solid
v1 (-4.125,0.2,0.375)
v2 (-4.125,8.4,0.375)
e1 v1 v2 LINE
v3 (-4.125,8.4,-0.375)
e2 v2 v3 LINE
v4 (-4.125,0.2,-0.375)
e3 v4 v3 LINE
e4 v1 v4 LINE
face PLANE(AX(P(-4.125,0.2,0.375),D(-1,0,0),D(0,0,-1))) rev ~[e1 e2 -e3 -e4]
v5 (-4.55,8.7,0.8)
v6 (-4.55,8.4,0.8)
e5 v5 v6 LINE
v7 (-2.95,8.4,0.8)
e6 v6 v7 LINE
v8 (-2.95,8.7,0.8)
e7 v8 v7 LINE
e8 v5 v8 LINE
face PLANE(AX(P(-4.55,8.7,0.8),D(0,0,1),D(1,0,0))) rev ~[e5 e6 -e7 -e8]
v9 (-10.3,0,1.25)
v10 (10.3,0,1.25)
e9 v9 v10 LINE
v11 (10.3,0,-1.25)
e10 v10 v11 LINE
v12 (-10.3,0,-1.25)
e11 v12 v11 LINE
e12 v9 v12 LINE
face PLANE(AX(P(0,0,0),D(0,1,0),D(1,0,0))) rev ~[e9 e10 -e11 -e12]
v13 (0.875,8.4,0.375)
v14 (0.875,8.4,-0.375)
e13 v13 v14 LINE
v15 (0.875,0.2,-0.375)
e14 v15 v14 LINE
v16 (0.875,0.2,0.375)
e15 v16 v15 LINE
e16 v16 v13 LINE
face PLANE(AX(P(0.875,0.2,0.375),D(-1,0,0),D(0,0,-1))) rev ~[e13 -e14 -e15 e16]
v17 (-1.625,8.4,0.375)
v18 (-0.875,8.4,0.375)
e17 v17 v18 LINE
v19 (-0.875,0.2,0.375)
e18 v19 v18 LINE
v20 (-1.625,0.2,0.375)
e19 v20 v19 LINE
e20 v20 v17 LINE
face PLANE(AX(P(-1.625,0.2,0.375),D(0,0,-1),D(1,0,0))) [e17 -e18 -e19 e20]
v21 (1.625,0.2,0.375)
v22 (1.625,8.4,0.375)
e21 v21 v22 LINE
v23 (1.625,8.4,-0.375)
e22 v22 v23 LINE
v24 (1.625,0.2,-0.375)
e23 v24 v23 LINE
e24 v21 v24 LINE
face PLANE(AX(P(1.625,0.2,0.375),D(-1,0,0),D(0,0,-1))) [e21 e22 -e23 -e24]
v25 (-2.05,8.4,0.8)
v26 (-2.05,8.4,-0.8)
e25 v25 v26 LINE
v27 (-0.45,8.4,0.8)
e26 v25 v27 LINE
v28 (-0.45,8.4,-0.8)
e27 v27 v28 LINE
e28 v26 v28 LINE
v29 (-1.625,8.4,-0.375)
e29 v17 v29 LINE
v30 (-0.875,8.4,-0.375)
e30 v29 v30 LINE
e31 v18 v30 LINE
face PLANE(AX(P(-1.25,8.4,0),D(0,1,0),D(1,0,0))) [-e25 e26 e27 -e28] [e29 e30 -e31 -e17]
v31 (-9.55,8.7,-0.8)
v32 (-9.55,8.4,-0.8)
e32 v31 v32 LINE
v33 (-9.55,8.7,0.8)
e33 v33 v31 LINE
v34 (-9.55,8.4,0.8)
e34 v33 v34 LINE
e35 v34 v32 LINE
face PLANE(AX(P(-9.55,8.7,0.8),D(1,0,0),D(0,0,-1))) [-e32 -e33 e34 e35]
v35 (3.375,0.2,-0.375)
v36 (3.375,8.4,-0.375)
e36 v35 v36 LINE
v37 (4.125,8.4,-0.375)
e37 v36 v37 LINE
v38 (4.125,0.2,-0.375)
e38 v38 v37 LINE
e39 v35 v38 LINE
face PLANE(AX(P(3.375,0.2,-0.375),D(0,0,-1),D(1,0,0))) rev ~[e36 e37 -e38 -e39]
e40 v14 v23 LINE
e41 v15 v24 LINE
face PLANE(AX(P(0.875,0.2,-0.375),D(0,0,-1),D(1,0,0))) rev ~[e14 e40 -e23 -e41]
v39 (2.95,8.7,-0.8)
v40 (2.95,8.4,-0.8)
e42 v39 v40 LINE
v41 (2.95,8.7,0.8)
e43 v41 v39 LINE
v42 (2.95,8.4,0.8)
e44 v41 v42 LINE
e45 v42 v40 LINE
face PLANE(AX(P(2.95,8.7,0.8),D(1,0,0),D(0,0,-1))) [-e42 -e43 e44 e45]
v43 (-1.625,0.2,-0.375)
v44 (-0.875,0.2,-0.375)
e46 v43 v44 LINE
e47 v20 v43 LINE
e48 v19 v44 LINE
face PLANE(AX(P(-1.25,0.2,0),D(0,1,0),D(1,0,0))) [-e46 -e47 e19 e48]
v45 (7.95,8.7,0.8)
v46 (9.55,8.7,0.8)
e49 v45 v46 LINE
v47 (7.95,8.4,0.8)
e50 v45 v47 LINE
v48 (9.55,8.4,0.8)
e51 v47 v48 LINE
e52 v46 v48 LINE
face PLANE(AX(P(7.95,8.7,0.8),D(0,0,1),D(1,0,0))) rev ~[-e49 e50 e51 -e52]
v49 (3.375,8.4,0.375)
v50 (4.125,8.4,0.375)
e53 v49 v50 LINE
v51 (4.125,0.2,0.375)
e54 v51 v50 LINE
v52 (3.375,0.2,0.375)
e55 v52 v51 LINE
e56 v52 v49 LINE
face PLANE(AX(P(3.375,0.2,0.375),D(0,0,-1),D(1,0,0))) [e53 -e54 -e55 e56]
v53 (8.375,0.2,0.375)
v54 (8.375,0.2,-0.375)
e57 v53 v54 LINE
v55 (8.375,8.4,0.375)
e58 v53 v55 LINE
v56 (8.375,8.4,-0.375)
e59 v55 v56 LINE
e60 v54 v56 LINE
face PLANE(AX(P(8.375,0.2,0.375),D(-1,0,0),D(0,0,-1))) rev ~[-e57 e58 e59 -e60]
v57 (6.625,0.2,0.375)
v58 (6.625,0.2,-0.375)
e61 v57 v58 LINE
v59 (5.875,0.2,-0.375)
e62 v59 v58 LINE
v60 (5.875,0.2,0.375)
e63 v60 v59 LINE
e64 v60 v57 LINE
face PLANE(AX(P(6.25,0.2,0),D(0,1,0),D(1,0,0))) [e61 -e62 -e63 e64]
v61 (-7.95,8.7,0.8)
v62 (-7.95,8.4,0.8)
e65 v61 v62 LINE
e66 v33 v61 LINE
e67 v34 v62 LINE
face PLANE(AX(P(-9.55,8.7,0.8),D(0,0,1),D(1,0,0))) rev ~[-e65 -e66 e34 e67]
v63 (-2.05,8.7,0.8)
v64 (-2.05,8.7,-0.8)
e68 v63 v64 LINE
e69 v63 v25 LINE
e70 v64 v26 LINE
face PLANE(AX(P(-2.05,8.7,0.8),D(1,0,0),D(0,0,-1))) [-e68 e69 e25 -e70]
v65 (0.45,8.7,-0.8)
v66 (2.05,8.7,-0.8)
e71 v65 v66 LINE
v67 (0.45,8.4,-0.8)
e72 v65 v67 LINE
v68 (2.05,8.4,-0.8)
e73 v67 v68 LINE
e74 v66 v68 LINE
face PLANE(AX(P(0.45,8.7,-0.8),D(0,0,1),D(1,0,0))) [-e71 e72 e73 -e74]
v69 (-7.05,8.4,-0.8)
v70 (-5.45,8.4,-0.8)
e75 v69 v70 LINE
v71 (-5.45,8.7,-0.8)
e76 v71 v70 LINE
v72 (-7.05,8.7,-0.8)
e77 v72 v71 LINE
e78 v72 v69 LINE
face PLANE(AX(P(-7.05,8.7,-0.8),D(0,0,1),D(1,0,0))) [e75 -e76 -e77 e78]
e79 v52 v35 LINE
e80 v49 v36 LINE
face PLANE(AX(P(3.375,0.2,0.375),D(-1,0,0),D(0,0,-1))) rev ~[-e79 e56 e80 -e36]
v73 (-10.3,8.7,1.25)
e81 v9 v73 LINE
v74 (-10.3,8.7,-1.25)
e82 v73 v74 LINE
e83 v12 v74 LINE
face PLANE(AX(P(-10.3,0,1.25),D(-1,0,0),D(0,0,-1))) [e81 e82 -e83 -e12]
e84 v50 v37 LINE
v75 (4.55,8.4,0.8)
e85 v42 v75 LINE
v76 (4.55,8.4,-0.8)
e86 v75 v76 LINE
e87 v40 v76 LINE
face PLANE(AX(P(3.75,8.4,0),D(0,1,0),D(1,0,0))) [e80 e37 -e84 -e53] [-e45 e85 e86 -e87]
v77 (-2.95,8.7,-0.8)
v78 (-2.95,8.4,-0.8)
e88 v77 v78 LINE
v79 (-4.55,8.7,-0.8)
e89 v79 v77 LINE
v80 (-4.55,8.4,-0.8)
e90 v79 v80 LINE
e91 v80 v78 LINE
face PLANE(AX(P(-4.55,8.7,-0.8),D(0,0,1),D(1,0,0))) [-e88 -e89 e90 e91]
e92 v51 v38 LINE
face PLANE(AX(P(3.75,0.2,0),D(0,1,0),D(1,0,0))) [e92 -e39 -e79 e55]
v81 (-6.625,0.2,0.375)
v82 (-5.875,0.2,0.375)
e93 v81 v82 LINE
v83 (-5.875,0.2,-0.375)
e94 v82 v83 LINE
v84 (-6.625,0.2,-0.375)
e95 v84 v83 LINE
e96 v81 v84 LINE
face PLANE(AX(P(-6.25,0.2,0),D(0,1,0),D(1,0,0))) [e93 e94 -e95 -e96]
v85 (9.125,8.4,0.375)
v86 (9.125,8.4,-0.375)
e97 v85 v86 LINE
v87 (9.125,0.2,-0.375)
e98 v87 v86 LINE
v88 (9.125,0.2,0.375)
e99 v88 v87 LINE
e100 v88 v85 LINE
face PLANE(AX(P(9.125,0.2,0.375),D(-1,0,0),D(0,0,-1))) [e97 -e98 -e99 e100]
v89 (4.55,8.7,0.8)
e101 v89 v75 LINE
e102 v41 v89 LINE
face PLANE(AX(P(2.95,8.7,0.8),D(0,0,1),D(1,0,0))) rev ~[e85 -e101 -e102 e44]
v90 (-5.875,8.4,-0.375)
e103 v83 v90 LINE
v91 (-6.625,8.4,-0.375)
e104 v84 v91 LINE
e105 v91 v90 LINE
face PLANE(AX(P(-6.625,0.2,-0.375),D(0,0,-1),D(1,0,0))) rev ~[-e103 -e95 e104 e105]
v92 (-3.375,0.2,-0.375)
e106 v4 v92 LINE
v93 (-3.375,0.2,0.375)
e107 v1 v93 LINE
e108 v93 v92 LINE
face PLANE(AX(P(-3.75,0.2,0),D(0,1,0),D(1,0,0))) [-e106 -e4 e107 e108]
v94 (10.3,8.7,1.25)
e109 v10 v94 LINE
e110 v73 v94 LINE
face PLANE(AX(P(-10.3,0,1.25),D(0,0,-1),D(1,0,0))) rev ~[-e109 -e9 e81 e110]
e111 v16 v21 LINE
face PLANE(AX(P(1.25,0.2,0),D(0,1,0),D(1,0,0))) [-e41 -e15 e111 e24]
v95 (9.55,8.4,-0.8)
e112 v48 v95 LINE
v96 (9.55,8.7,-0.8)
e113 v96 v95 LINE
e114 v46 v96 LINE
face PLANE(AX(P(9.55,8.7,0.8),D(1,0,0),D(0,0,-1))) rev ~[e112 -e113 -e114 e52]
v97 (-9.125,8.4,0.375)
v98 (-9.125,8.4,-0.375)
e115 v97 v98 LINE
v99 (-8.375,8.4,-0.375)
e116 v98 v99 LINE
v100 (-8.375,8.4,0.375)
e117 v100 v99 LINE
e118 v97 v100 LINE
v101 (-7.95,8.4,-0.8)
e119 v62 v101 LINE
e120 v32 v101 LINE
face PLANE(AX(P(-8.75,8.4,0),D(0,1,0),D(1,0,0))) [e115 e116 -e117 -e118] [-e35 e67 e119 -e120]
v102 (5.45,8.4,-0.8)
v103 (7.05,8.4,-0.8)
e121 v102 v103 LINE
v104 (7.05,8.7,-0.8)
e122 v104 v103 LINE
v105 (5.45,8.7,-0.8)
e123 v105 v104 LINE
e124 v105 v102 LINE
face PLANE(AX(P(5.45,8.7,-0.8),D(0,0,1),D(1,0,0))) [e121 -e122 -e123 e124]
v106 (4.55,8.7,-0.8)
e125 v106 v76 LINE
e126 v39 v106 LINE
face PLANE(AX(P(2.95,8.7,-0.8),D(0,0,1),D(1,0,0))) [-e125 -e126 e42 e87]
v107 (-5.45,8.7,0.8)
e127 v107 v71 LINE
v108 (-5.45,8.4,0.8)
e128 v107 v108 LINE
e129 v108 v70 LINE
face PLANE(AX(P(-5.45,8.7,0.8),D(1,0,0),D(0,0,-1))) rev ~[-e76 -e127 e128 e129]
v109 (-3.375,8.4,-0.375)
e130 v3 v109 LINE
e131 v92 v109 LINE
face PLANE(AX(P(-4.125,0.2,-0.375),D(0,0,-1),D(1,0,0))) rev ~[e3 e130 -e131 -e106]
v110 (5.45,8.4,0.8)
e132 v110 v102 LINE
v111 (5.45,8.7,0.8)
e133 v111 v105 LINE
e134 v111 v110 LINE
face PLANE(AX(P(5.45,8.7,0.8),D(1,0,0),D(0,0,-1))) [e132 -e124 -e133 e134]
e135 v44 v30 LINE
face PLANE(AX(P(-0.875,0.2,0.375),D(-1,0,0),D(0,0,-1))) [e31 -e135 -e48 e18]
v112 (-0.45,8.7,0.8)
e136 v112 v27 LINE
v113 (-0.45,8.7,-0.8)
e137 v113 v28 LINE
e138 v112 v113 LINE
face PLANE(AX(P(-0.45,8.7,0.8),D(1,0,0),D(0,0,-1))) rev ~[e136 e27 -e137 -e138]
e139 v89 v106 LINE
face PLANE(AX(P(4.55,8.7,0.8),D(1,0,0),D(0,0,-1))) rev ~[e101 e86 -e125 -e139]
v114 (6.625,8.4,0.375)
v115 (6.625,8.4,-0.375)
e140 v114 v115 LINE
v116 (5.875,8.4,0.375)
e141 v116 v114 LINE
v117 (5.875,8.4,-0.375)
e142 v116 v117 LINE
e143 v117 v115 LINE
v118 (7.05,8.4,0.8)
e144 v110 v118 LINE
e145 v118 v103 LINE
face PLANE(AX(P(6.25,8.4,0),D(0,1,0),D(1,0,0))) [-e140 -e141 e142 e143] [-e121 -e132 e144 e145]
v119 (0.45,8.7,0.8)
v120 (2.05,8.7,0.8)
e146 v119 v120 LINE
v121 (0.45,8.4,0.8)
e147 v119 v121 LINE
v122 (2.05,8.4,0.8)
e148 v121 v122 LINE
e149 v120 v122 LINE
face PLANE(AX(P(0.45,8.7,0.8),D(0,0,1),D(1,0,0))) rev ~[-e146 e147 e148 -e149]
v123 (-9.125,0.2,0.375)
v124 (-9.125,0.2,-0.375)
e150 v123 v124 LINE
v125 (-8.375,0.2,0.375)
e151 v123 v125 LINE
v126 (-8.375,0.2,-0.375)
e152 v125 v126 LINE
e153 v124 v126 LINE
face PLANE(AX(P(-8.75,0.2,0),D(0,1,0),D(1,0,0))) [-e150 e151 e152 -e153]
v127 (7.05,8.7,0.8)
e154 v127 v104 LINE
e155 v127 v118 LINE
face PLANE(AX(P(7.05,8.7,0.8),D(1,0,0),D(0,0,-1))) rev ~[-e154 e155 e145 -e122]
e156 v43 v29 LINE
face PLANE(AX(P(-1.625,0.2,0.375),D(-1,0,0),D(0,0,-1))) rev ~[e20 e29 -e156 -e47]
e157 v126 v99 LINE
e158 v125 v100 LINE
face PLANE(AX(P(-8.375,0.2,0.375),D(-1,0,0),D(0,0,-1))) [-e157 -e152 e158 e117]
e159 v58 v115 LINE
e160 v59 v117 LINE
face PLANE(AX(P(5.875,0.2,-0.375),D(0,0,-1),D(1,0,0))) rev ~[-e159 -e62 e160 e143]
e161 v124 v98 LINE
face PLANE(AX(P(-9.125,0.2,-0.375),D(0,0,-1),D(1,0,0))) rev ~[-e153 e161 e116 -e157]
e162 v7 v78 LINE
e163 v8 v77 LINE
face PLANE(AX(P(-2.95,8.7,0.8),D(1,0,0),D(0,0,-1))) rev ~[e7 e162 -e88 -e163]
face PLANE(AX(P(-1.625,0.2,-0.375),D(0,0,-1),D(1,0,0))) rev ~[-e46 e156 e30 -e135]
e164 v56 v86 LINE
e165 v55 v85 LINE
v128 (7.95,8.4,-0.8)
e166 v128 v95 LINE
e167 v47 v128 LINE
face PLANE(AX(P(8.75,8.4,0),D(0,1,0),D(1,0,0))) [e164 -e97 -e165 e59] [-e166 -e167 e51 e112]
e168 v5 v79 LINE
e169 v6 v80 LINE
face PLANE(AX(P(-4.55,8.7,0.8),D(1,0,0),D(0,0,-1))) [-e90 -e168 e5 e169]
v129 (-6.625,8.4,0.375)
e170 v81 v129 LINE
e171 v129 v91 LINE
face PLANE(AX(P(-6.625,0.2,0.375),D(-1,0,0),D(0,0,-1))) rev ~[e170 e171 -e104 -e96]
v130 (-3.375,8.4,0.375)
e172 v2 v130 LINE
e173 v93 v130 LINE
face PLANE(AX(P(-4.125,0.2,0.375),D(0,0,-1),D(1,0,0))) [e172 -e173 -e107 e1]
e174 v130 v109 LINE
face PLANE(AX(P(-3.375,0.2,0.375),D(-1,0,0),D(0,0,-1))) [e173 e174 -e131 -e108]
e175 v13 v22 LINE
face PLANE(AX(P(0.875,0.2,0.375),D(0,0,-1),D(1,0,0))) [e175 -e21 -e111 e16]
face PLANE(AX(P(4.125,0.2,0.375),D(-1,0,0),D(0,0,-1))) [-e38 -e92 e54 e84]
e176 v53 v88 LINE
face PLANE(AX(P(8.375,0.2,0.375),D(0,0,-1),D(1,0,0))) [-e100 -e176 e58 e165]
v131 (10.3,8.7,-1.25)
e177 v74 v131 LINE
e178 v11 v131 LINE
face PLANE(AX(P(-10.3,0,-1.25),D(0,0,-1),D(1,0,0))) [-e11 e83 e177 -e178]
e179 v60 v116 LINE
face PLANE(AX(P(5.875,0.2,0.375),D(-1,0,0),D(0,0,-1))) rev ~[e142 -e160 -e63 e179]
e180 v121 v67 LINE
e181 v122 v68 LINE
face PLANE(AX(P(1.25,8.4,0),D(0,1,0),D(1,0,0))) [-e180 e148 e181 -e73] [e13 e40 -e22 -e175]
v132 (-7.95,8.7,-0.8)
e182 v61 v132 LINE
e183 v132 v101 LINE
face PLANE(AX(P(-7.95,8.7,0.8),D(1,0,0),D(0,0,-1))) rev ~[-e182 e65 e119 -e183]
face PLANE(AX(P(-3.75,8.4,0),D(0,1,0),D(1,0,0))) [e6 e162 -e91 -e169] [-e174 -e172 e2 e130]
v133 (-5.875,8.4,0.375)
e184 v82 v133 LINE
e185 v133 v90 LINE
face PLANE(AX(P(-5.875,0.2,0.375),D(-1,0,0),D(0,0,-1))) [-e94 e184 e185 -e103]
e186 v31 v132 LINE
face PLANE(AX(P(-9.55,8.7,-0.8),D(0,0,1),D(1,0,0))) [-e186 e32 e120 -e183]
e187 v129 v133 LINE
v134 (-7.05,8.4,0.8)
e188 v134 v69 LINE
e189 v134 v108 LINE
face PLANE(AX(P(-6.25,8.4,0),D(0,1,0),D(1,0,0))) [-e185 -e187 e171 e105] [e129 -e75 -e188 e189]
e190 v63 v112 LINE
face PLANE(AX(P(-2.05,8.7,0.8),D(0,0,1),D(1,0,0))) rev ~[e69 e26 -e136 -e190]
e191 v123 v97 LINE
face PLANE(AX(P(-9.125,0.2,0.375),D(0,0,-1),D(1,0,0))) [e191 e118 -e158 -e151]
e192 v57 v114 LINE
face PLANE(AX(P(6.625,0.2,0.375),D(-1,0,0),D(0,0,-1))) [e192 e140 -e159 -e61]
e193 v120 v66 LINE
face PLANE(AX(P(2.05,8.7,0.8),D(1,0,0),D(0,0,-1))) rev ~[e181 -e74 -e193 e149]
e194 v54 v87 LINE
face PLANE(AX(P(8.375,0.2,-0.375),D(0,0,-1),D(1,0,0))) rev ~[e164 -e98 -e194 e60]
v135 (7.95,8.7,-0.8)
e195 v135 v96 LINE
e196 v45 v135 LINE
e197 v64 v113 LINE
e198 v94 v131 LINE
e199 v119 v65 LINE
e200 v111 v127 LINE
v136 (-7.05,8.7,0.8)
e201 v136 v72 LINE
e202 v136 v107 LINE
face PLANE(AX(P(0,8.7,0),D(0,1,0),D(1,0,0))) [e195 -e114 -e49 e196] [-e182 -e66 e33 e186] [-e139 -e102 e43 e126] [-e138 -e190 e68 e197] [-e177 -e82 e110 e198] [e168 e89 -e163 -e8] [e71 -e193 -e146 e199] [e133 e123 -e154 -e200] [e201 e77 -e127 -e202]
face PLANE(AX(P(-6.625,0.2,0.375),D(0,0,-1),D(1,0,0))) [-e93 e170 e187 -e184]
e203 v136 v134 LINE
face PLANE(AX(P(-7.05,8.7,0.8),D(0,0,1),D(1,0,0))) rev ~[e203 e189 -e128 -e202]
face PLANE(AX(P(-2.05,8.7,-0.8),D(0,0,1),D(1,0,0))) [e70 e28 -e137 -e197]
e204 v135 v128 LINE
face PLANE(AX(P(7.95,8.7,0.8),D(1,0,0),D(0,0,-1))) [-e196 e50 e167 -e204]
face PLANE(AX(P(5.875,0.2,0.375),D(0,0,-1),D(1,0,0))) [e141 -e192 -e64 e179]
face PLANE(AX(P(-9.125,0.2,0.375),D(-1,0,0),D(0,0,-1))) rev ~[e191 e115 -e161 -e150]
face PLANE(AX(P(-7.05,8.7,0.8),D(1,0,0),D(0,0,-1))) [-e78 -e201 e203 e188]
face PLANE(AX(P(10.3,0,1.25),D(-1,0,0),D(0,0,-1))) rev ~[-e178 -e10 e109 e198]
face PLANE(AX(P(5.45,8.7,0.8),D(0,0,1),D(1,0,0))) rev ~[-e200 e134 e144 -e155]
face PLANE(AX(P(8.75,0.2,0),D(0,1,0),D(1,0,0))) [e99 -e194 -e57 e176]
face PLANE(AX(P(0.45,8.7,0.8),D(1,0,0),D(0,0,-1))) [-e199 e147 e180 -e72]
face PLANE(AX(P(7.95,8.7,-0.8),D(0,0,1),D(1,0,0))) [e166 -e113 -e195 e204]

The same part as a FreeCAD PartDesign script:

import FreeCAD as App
import Part
import Sketcher
from FreeCAD import Vector

doc = App.newDocument("Part")
params = doc.addObject("Spreadsheet::Sheet", "Params")
for row, (alias, value) in enumerate([
    ("sketch1_width", "20.6 mm"),
    ("sketch1_height", "2.5 mm"),
    ("pad1_length", "8.7 mm"),
    ("sketch2_width", "1.6 mm"),
    ("pocket1_length", "8.5 mm"),
    ("sketch3_width", "1.6 mm"),
    ("sketch3_width2", "0.75 mm"),
    ("pad2_length", "8.2 mm"),
], start=1):
    params.set(f"A{row}", alias)
    params.set(f"B{row}", "=" + value)
    params.setAlias(f"B{row}", alias)

body = doc.addObject("PartDesign::Body", "Body")

sketch1 = doc.addObject("Sketcher::SketchObject", "Sketch")
body.addObject(sketch1)
sketch1.AttachmentSupport = (doc.XZ_Plane, [""])
sketch1.MapMode = "FlatFace"
sketch1.addGeometry([
    Part.LineSegment(Vector(-10.3, -1.2, 0), Vector(-10.3, 1.2, 0)),
    Part.LineSegment(Vector(-10.3, 1.2, 0), Vector(10.3, 1.2, 0)),
    Part.LineSegment(Vector(10.3, 1.2, 0), Vector(10.3, -1.2, 0)),
    Part.LineSegment(Vector(10.3, -1.2, 0), Vector(-10.3, -1.2, 0)),
], False)
sketch1.addConstraint([
    Sketcher.Constraint("Coincident", 0, 2, 1, 1),
    Sketcher.Constraint("Coincident", 1, 2, 2, 1),
    Sketcher.Constraint("Coincident", 2, 2, 3, 1),
    Sketcher.Constraint("Coincident", 3, 2, 0, 1),
    Sketcher.Constraint("Vertical", 0),
    Sketcher.Constraint("Horizontal", 1),
    Sketcher.Constraint("Vertical", 2),
    Sketcher.Constraint("Horizontal", 3),
    Sketcher.Constraint("Symmetric", 0, 2, 2, 2, -1, 1),
    Sketcher.Constraint("DistanceX", 1, 1, 1, 2, 20.6),
    Sketcher.Constraint("DistanceY", 0, 1, 0, 2, 2.5),
])
sketch1.setExpression("Constraints[9]", "Params.sketch1_width")
sketch1.setExpression("Constraints[10]", "Params.sketch1_height")
pad1 = doc.addObject("PartDesign::Pad", "Pad")
body.addObject(pad1)
pad1.Profile = sketch1
pad1.setExpression("Length", "Params.pad1_length")
pad1.Reversed = True

sketch2 = doc.addObject("Sketcher::SketchObject", "Sketch001")
body.addObject(sketch2)
sketch2.AttachmentSupport = (doc.XZ_Plane, [""])
sketch2.MapMode = "FlatFace"
sketch2.AttachmentOffset = App.Placement(Vector(0, 0, -8.7), App.Rotation())
sketch2.addGeometry([
    Part.LineSegment(Vector(-9.6, -0.8, 0), Vector(-9.6, 0.8, 0)),
    Part.LineSegment(Vector(-9.6, 0.8, 0), Vector(-8, 0.8, 0)),
    Part.LineSegment(Vector(-8, 0.8, 0), Vector(-8, -0.8, 0)),
    Part.LineSegment(Vector(-8, -0.8, 0), Vector(-9.6, -0.8, 0)),
    Part.LineSegment(Vector(-7, -0.8, 0), Vector(-7, 0.8, 0)),
    Part.LineSegment(Vector(-7, 0.8, 0), Vector(-5.5, 0.8, 0)),
    Part.LineSegment(Vector(-5.5, 0.8, 0), Vector(-5.5, -0.8, 0)),
    Part.LineSegment(Vector(-5.5, -0.8, 0), Vector(-7, -0.8, 0)),
    Part.LineSegment(Vector(-4.5, -0.8, 0), Vector(-4.5, 0.8, 0)),
    Part.LineSegment(Vector(-4.5, 0.8, 0), Vector(-3, 0.8, 0)),
    Part.LineSegment(Vector(-3, 0.8, 0), Vector(-3, -0.8, 0)),
    Part.LineSegment(Vector(-3, -0.8, 0), Vector(-4.5, -0.8, 0)),
    Part.LineSegment(Vector(-2, -0.8, 0), Vector(-2, 0.8, 0)),
    Part.LineSegment(Vector(-2, 0.8, 0), Vector(-0.5, 0.8, 0)),
    Part.LineSegment(Vector(-0.5, 0.8, 0), Vector(-0.5, -0.8, 0)),
    Part.LineSegment(Vector(-0.5, -0.8, 0), Vector(-2, -0.8, 0)),
    Part.LineSegment(Vector(0.5, -0.8, 0), Vector(0.5, 0.8, 0)),
    Part.LineSegment(Vector(0.5, 0.8, 0), Vector(2, 0.8, 0)),
    Part.LineSegment(Vector(2, 0.8, 0), Vector(2, -0.8, 0)),
    Part.LineSegment(Vector(2, -0.8, 0), Vector(0.5, -0.8, 0)),
    Part.LineSegment(Vector(3, -0.8, 0), Vector(3, 0.8, 0)),
    Part.LineSegment(Vector(3, 0.8, 0), Vector(4.5, 0.8, 0)),
    Part.LineSegment(Vector(4.5, 0.8, 0), Vector(4.5, -0.8, 0)),
    Part.LineSegment(Vector(4.5, -0.8, 0), Vector(3, -0.8, 0)),
    Part.LineSegment(Vector(5.5, -0.8, 0), Vector(5.5, 0.8, 0)),
    Part.LineSegment(Vector(5.5, 0.8, 0), Vector(7, 0.8, 0)),
    Part.LineSegment(Vector(7, 0.8, 0), Vector(7, -0.8, 0)),
    Part.LineSegment(Vector(7, -0.8, 0), Vector(5.5, -0.8, 0)),
    Part.LineSegment(Vector(8, -0.8, 0), Vector(8, 0.8, 0)),
    Part.LineSegment(Vector(8, 0.8, 0), Vector(9.6, 0.8, 0)),
    Part.LineSegment(Vector(9.6, 0.8, 0), Vector(9.6, -0.8, 0)),
    Part.LineSegment(Vector(9.6, -0.8, 0), Vector(8, -0.8, 0)),
], False)
sketch2.addConstraint([
    Sketcher.Constraint("Coincident", 0, 2, 1, 1),
    Sketcher.Constraint("Coincident", 1, 2, 2, 1),
    Sketcher.Constraint("Coincident", 2, 2, 3, 1),
    Sketcher.Constraint("Coincident", 3, 2, 0, 1),
    Sketcher.Constraint("Coincident", 4, 2, 5, 1),
    Sketcher.Constraint("Coincident", 5, 2, 6, 1),
    Sketcher.Constraint("Coincident", 6, 2, 7, 1),
    Sketcher.Constraint("Coincident", 7, 2, 4, 1),
    Sketcher.Constraint("Coincident", 8, 2, 9, 1),
    Sketcher.Constraint("Coincident", 9, 2, 10, 1),
    Sketcher.Constraint("Coincident", 10, 2, 11, 1),
    Sketcher.Constraint("Coincident", 11, 2, 8, 1),
    Sketcher.Constraint("Coincident", 12, 2, 13, 1),
    Sketcher.Constraint("Coincident", 13, 2, 14, 1),
    Sketcher.Constraint("Coincident", 14, 2, 15, 1),
    Sketcher.Constraint("Coincident", 15, 2, 12, 1),
    Sketcher.Constraint("Coincident", 16, 2, 17, 1),
    Sketcher.Constraint("Coincident", 17, 2, 18, 1),
    Sketcher.Constraint("Coincident", 18, 2, 19, 1),
    Sketcher.Constraint("Coincident", 19, 2, 16, 1),
    Sketcher.Constraint("Coincident", 20, 2, 21, 1),
    Sketcher.Constraint("Coincident", 21, 2, 22, 1),
    Sketcher.Constraint("Coincident", 22, 2, 23, 1),
    Sketcher.Constraint("Coincident", 23, 2, 20, 1),
    Sketcher.Constraint("Coincident", 24, 2, 25, 1),
    Sketcher.Constraint("Coincident", 25, 2, 26, 1),
    Sketcher.Constraint("Coincident", 26, 2, 27, 1),
    Sketcher.Constraint("Coincident", 27, 2, 24, 1),
    Sketcher.Constraint("Coincident", 28, 2, 29, 1),
    Sketcher.Constraint("Coincident", 29, 2, 30, 1),
    Sketcher.Constraint("Coincident", 30, 2, 31, 1),
    Sketcher.Constraint("Coincident", 31, 2, 28, 1),
    Sketcher.Constraint("Vertical", 0),
    Sketcher.Constraint("Horizontal", 1),
    Sketcher.Constraint("Vertical", 2),
    Sketcher.Constraint("Horizontal", 3),
    Sketcher.Constraint("Vertical", 4),
    Sketcher.Constraint("Horizontal", 5),
    Sketcher.Constraint("Vertical", 6),
    Sketcher.Constraint("Horizontal", 7),
    Sketcher.Constraint("Vertical", 8),
    Sketcher.Constraint("Horizontal", 9),
    Sketcher.Constraint("Vertical", 10),
    Sketcher.Constraint("Horizontal", 11),
    Sketcher.Constraint("Vertical", 12),
    Sketcher.Constraint("Horizontal", 13),
    Sketcher.Constraint("Vertical", 14),
    Sketcher.Constraint("Horizontal", 15),
    Sketcher.Constraint("Vertical", 16),
    Sketcher.Constraint("Horizontal", 17),
    Sketcher.Constraint("Vertical", 18),
    Sketcher.Constraint("Horizontal", 19),
    Sketcher.Constraint("Vertical", 20),
    Sketcher.Constraint("Horizontal", 21),
    Sketcher.Constraint("Vertical", 22),
    Sketcher.Constraint("Horizontal", 23),
    Sketcher.Constraint("Vertical", 24),
    Sketcher.Constraint("Horizontal", 25),
    Sketcher.Constraint("Vertical", 26),
    Sketcher.Constraint("Horizontal", 27),
    Sketcher.Constraint("Vertical", 28),
    Sketcher.Constraint("Horizontal", 29),
    Sketcher.Constraint("Vertical", 30),
    Sketcher.Constraint("Horizontal", 31),
    Sketcher.Constraint("Symmetric", 14, 2, 16, 2, -1, 1),
    Sketcher.Constraint("Symmetric", 12, 2, 18, 2, -1, 1),
    Sketcher.Constraint("Symmetric", 10, 2, 20, 2, -1, 1),
    Sketcher.Constraint("Symmetric", 8, 2, 22, 2, -1, 1),
    Sketcher.Constraint("Symmetric", 6, 2, 24, 2, -1, 1),
    Sketcher.Constraint("Symmetric", 4, 2, 26, 2, -1, 1),
    Sketcher.Constraint("Symmetric", 2, 2, 28, 2, -1, 1),
    Sketcher.Constraint("Symmetric", 0, 2, 30, 2, -1, 1),
    Sketcher.Constraint("Horizontal", 1, 2, 4, 2),
    Sketcher.Constraint("Horizontal", 3, 2, 6, 2),
    Sketcher.Constraint("Horizontal", 5, 2, 8, 2),
    Sketcher.Constraint("Horizontal", 7, 2, 10, 2),
    Sketcher.Constraint("Horizontal", 9, 2, 12, 2),
    Sketcher.Constraint("Horizontal", 11, 2, 14, 2),
    Sketcher.Constraint("Horizontal", 13, 2, 16, 2),
    Sketcher.Constraint("Equal", 3, 5),
    Sketcher.Constraint("Equal", 7, 9),
    Sketcher.Constraint("Equal", 11, 13),
    Sketcher.Constraint("Equal", 31, 0),
    Sketcher.Constraint("DistanceX", 1, 1, 1, 2, 1.6),
    Sketcher.Constraint("DistanceX", 1, 2, 4, 2, 0.9),
    Sketcher.Constraint("DistanceX", 5, 2, 8, 2, 0.9),
    Sketcher.Constraint("DistanceX", 9, 2, 12, 2, 0.9),
    Sketcher.Constraint("DistanceX", 13, 2, 16, 2, 0.9),
])
sketch2.setExpression("Constraints[83]", "Params.sketch2_width")
pocket1 = doc.addObject("PartDesign::Pocket", "Pocket")
body.addObject(pocket1)
pocket1.Profile = sketch2
pocket1.setExpression("Length", "Params.pocket1_length")
pocket1.Reversed = True

sketch3 = doc.addObject("Sketcher::SketchObject", "Sketch002")
body.addObject(sketch3)
sketch3.AttachmentSupport = (doc.XZ_Plane, [""])
sketch3.MapMode = "FlatFace"
sketch3.AttachmentOffset = App.Placement(Vector(0, 0, -0.2), App.Rotation())
sketch3.addGeometry([
    Part.LineSegment(Vector(-9.6, -0.8, 0), Vector(-9.6, 0.8, 0)),
    Part.LineSegment(Vector(-9.6, 0.8, 0), Vector(-8, 0.8, 0)),
    Part.LineSegment(Vector(-8, 0.8, 0), Vector(-8, -0.8, 0)),
    Part.LineSegment(Vector(-8, -0.8, 0), Vector(-9.6, -0.8, 0)),
    Part.LineSegment(Vector(-8.4, 0.4, 0), Vector(-9.1, 0.4, 0)),
    Part.LineSegment(Vector(-9.1, 0.4, 0), Vector(-9.1, -0.4, 0)),
    Part.LineSegment(Vector(-9.1, -0.4, 0), Vector(-8.4, -0.4, 0)),
    Part.LineSegment(Vector(-8.4, -0.4, 0), Vector(-8.4, 0.4, 0)),
    Part.LineSegment(Vector(-7, -0.8, 0), Vector(-7, 0.8, 0)),
    Part.LineSegment(Vector(-7, 0.8, 0), Vector(-5.5, 0.8, 0)),
    Part.LineSegment(Vector(-5.5, 0.8, 0), Vector(-5.5, -0.8, 0)),
    Part.LineSegment(Vector(-5.5, -0.8, 0), Vector(-7, -0.8, 0)),
    Part.LineSegment(Vector(-5.9, 0.4, 0), Vector(-6.6, 0.4, 0)),
    Part.LineSegment(Vector(-6.6, 0.4, 0), Vector(-6.6, -0.4, 0)),
    Part.LineSegment(Vector(-6.6, -0.4, 0), Vector(-5.9, -0.4, 0)),
    Part.LineSegment(Vector(-5.9, -0.4, 0), Vector(-5.9, 0.4, 0)),
    Part.LineSegment(Vector(-4.5, -0.8, 0), Vector(-4.5, 0.8, 0)),
    Part.LineSegment(Vector(-4.5, 0.8, 0), Vector(-3, 0.8, 0)),
    Part.LineSegment(Vector(-3, 0.8, 0), Vector(-3, -0.8, 0)),
    Part.LineSegment(Vector(-3, -0.8, 0), Vector(-4.5, -0.8, 0)),
    Part.LineSegment(Vector(-3.4, 0.4, 0), Vector(-4.1, 0.4, 0)),
    Part.LineSegment(Vector(-4.1, 0.4, 0), Vector(-4.1, -0.4, 0)),
    Part.LineSegment(Vector(-4.1, -0.4, 0), Vector(-3.4, -0.4, 0)),
    Part.LineSegment(Vector(-3.4, -0.4, 0), Vector(-3.4, 0.4, 0)),
    Part.LineSegment(Vector(-2, -0.8, 0), Vector(-2, 0.8, 0)),
    Part.LineSegment(Vector(-2, 0.8, 0), Vector(-0.5, 0.8, 0)),
    Part.LineSegment(Vector(-0.5, 0.8, 0), Vector(-0.5, -0.8, 0)),
    Part.LineSegment(Vector(-0.5, -0.8, 0), Vector(-2, -0.8, 0)),
    Part.LineSegment(Vector(-0.9, 0.4, 0), Vector(-1.6, 0.4, 0)),
    Part.LineSegment(Vector(-1.6, 0.4, 0), Vector(-1.6, -0.4, 0)),
    Part.LineSegment(Vector(-1.6, -0.4, 0), Vector(-0.9, -0.4, 0)),
    Part.LineSegment(Vector(-0.9, -0.4, 0), Vector(-0.9, 0.4, 0)),
    Part.LineSegment(Vector(0.5, -0.8, 0), Vector(0.5, 0.8, 0)),
    Part.LineSegment(Vector(0.5, 0.8, 0), Vector(2, 0.8, 0)),
    Part.LineSegment(Vector(2, 0.8, 0), Vector(2, -0.8, 0)),
    Part.LineSegment(Vector(2, -0.8, 0), Vector(0.5, -0.8, 0)),
    Part.LineSegment(Vector(1.6, 0.4, 0), Vector(0.9, 0.4, 0)),
    Part.LineSegment(Vector(0.9, 0.4, 0), Vector(0.9, -0.4, 0)),
    Part.LineSegment(Vector(0.9, -0.4, 0), Vector(1.6, -0.4, 0)),
    Part.LineSegment(Vector(1.6, -0.4, 0), Vector(1.6, 0.4, 0)),
    Part.LineSegment(Vector(3, -0.8, 0), Vector(3, 0.8, 0)),
    Part.LineSegment(Vector(3, 0.8, 0), Vector(4.5, 0.8, 0)),
    Part.LineSegment(Vector(4.5, 0.8, 0), Vector(4.5, -0.8, 0)),
    Part.LineSegment(Vector(4.5, -0.8, 0), Vector(3, -0.8, 0)),
    Part.LineSegment(Vector(4.1, 0.4, 0), Vector(3.4, 0.4, 0)),
    Part.LineSegment(Vector(3.4, 0.4, 0), Vector(3.4, -0.4, 0)),
    Part.LineSegment(Vector(3.4, -0.4, 0), Vector(4.1, -0.4, 0)),
    Part.LineSegment(Vector(4.1, -0.4, 0), Vector(4.1, 0.4, 0)),
    Part.LineSegment(Vector(5.5, -0.8, 0), Vector(5.5, 0.8, 0)),
    Part.LineSegment(Vector(5.5, 0.8, 0), Vector(7, 0.8, 0)),
    Part.LineSegment(Vector(7, 0.8, 0), Vector(7, -0.8, 0)),
    Part.LineSegment(Vector(7, -0.8, 0), Vector(5.5, -0.8, 0)),
    Part.LineSegment(Vector(6.6, 0.4, 0), Vector(5.9, 0.4, 0)),
    Part.LineSegment(Vector(5.9, 0.4, 0), Vector(5.9, -0.4, 0)),
    Part.LineSegment(Vector(5.9, -0.4, 0), Vector(6.6, -0.4, 0)),
    Part.LineSegment(Vector(6.6, -0.4, 0), Vector(6.6, 0.4, 0)),
    Part.LineSegment(Vector(8, -0.8, 0), Vector(8, 0.8, 0)),
    Part.LineSegment(Vector(8, 0.8, 0), Vector(9.6, 0.8, 0)),
    Part.LineSegment(Vector(9.6, 0.8, 0), Vector(9.6, -0.8, 0)),
    Part.LineSegment(Vector(9.6, -0.8, 0), Vector(8, -0.8, 0)),
    Part.LineSegment(Vector(9.1, 0.4, 0), Vector(8.4, 0.4, 0)),
    Part.LineSegment(Vector(8.4, 0.4, 0), Vector(8.4, -0.4, 0)),
    Part.LineSegment(Vector(8.4, -0.4, 0), Vector(9.1, -0.4, 0)),
    Part.LineSegment(Vector(9.1, -0.4, 0), Vector(9.1, 0.4, 0)),
], False)
sketch3.addConstraint([
    Sketcher.Constraint("Coincident", 0, 2, 1, 1),
    Sketcher.Constraint("Coincident", 1, 2, 2, 1),
    Sketcher.Constraint("Coincident", 2, 2, 3, 1),
    Sketcher.Constraint("Coincident", 3, 2, 0, 1),
    Sketcher.Constraint("Coincident", 4, 2, 5, 1),
    Sketcher.Constraint("Coincident", 5, 2, 6, 1),
    Sketcher.Constraint("Coincident", 6, 2, 7, 1),
    Sketcher.Constraint("Coincident", 7, 2, 4, 1),
    Sketcher.Constraint("Coincident", 8, 2, 9, 1),
    Sketcher.Constraint("Coincident", 9, 2, 10, 1),
    Sketcher.Constraint("Coincident", 10, 2, 11, 1),
    Sketcher.Constraint("Coincident", 11, 2, 8, 1),
    Sketcher.Constraint("Coincident", 12, 2, 13, 1),
    Sketcher.Constraint("Coincident", 13, 2, 14, 1),
    Sketcher.Constraint("Coincident", 14, 2, 15, 1),
    Sketcher.Constraint("Coincident", 15, 2, 12, 1),
    Sketcher.Constraint("Coincident", 16, 2, 17, 1),
    Sketcher.Constraint("Coincident", 17, 2, 18, 1),
    Sketcher.Constraint("Coincident", 18, 2, 19, 1),
    Sketcher.Constraint("Coincident", 19, 2, 16, 1),
    Sketcher.Constraint("Coincident", 20, 2, 21, 1),
    Sketcher.Constraint("Coincident", 21, 2, 22, 1),
    Sketcher.Constraint("Coincident", 22, 2, 23, 1),
    Sketcher.Constraint("Coincident", 23, 2, 20, 1),
    Sketcher.Constraint("Coincident", 24, 2, 25, 1),
    Sketcher.Constraint("Coincident", 25, 2, 26, 1),
    Sketcher.Constraint("Coincident", 26, 2, 27, 1),
    Sketcher.Constraint("Coincident", 27, 2, 24, 1),
    Sketcher.Constraint("Coincident", 28, 2, 29, 1),
    Sketcher.Constraint("Coincident", 29, 2, 30, 1),
    Sketcher.Constraint("Coincident", 30, 2, 31, 1),
    Sketcher.Constraint("Coincident", 31, 2, 28, 1),
    Sketcher.Constraint("Coincident", 32, 2, 33, 1),
    Sketcher.Constraint("Coincident", 33, 2, 34, 1),
    Sketcher.Constraint("Coincident", 34, 2, 35, 1),
    Sketcher.Constraint("Coincident", 35, 2, 32, 1),
    Sketcher.Constraint("Coincident", 36, 2, 37, 1),
    Sketcher.Constraint("Coincident", 37, 2, 38, 1),
    Sketcher.Constraint("Coincident", 38, 2, 39, 1),
    Sketcher.Constraint("Coincident", 39, 2, 36, 1),
    Sketcher.Constraint("Coincident", 40, 2, 41, 1),
    Sketcher.Constraint("Coincident", 41, 2, 42, 1),
    Sketcher.Constraint("Coincident", 42, 2, 43, 1),
    Sketcher.Constraint("Coincident", 43, 2, 40, 1),
    Sketcher.Constraint("Coincident", 44, 2, 45, 1),
    Sketcher.Constraint("Coincident", 45, 2, 46, 1),
    Sketcher.Constraint("Coincident", 46, 2, 47, 1),
    Sketcher.Constraint("Coincident", 47, 2, 44, 1),
    Sketcher.Constraint("Coincident", 48, 2, 49, 1),
    Sketcher.Constraint("Coincident", 49, 2, 50, 1),
    Sketcher.Constraint("Coincident", 50, 2, 51, 1),
    Sketcher.Constraint("Coincident", 51, 2, 48, 1),
    Sketcher.Constraint("Coincident", 52, 2, 53, 1),
    Sketcher.Constraint("Coincident", 53, 2, 54, 1),
    Sketcher.Constraint("Coincident", 54, 2, 55, 1),
    Sketcher.Constraint("Coincident", 55, 2, 52, 1),
    Sketcher.Constraint("Coincident", 56, 2, 57, 1),
    Sketcher.Constraint("Coincident", 57, 2, 58, 1),
    Sketcher.Constraint("Coincident", 58, 2, 59, 1),
    Sketcher.Constraint("Coincident", 59, 2, 56, 1),
    Sketcher.Constraint("Coincident", 60, 2, 61, 1),
    Sketcher.Constraint("Coincident", 61, 2, 62, 1),
    Sketcher.Constraint("Coincident", 62, 2, 63, 1),
    Sketcher.Constraint("Coincident", 63, 2, 60, 1),
    Sketcher.Constraint("Vertical", 0),
    Sketcher.Constraint("Horizontal", 1),
    Sketcher.Constraint("Vertical", 2),
    Sketcher.Constraint("Horizontal", 3),
    Sketcher.Constraint("Horizontal", 4),
    Sketcher.Constraint("Vertical", 5),
    Sketcher.Constraint("Horizontal", 6),
    Sketcher.Constraint("Vertical", 7),
    Sketcher.Constraint("Vertical", 8),
    Sketcher.Constraint("Horizontal", 9),
    Sketcher.Constraint("Vertical", 10),
    Sketcher.Constraint("Horizontal", 11),
    Sketcher.Constraint("Horizontal", 12),
    Sketcher.Constraint("Vertical", 13),
    Sketcher.Constraint("Horizontal", 14),
    Sketcher.Constraint("Vertical", 15),
    Sketcher.Constraint("Vertical", 16),
    Sketcher.Constraint("Horizontal", 17),
    Sketcher.Constraint("Vertical", 18),
    Sketcher.Constraint("Horizontal", 19),
    Sketcher.Constraint("Horizontal", 20),
    Sketcher.Constraint("Vertical", 21),
    Sketcher.Constraint("Horizontal", 22),
    Sketcher.Constraint("Vertical", 23),
    Sketcher.Constraint("Vertical", 24),
    Sketcher.Constraint("Horizontal", 25),
    Sketcher.Constraint("Vertical", 26),
    Sketcher.Constraint("Horizontal", 27),
    Sketcher.Constraint("Horizontal", 28),
    Sketcher.Constraint("Vertical", 29),
    Sketcher.Constraint("Horizontal", 30),
    Sketcher.Constraint("Vertical", 31),
    Sketcher.Constraint("Vertical", 32),
    Sketcher.Constraint("Horizontal", 33),
    Sketcher.Constraint("Vertical", 34),
    Sketcher.Constraint("Horizontal", 35),
    Sketcher.Constraint("Horizontal", 36),
    Sketcher.Constraint("Vertical", 37),
    Sketcher.Constraint("Horizontal", 38),
    Sketcher.Constraint("Vertical", 39),
    Sketcher.Constraint("Vertical", 40),
    Sketcher.Constraint("Horizontal", 41),
    Sketcher.Constraint("Vertical", 42),
    Sketcher.Constraint("Horizontal", 43),
    Sketcher.Constraint("Horizontal", 44),
    Sketcher.Constraint("Vertical", 45),
    Sketcher.Constraint("Horizontal", 46),
    Sketcher.Constraint("Vertical", 47),
    Sketcher.Constraint("Vertical", 48),
    Sketcher.Constraint("Horizontal", 49),
    Sketcher.Constraint("Vertical", 50),
    Sketcher.Constraint("Horizontal", 51),
    Sketcher.Constraint("Horizontal", 52),
    Sketcher.Constraint("Vertical", 53),
    Sketcher.Constraint("Horizontal", 54),
    Sketcher.Constraint("Vertical", 55),
    Sketcher.Constraint("Vertical", 56),
    Sketcher.Constraint("Horizontal", 57),
    Sketcher.Constraint("Vertical", 58),
    Sketcher.Constraint("Horizontal", 59),
    Sketcher.Constraint("Horizontal", 60),
    Sketcher.Constraint("Vertical", 61),
    Sketcher.Constraint("Horizontal", 62),
    Sketcher.Constraint("Vertical", 63),
    Sketcher.Constraint("Symmetric", 26, 2, 32, 2, -1, 1),
    Sketcher.Constraint("Symmetric", 24, 2, 34, 2, -1, 1),
    Sketcher.Constraint("Symmetric", 30, 2, 36, 2, -1, 1),
    Sketcher.Constraint("Symmetric", 28, 2, 38, 2, -1, 1),
    Sketcher.Constraint("Symmetric", 18, 2, 40, 2, -1, 1),
    Sketcher.Constraint("Symmetric", 16, 2, 42, 2, -1, 1),
    Sketcher.Constraint("Symmetric", 22, 2, 44, 2, -1, 1),
    Sketcher.Constraint("Symmetric", 20, 2, 46, 2, -1, 1),
    Sketcher.Constraint("Symmetric", 10, 2, 48, 2, -1, 1),
    Sketcher.Constraint("Symmetric", 8, 2, 50, 2, -1, 1),
    Sketcher.Constraint("Symmetric", 14, 2, 52, 2, -1, 1),
    Sketcher.Constraint("Symmetric", 12, 2, 54, 2, -1, 1),
    Sketcher.Constraint("Symmetric", 2, 2, 56, 2, -1, 1),
    Sketcher.Constraint("Symmetric", 0, 2, 58, 2, -1, 1),
    Sketcher.Constraint("Symmetric", 6, 2, 60, 2, -1, 1),
    Sketcher.Constraint("Symmetric", 4, 2, 62, 2, -1, 1),
    Sketcher.Constraint("Horizontal", 1, 2, 8, 2),
    Sketcher.Constraint("Horizontal", 3, 2, 10, 2),
    Sketcher.Constraint("Horizontal", 7, 2, 12, 2),
    Sketcher.Constraint("Horizontal", 6, 2, 13, 2),
    Sketcher.Constraint("Horizontal", 9, 2, 16, 2),
    Sketcher.Constraint("Horizontal", 11, 2, 18, 2),
    Sketcher.Constraint("Horizontal", 15, 2, 20, 2),
    Sketcher.Constraint("Horizontal", 14, 2, 21, 2),
    Sketcher.Constraint("Horizontal", 17, 2, 24, 2),
    Sketcher.Constraint("Horizontal", 19, 2, 26, 2),
    Sketcher.Constraint("Horizontal", 23, 2, 28, 2),
    Sketcher.Constraint("Horizontal", 22, 2, 29, 2),
    Sketcher.Constraint("Horizontal", 25, 2, 32, 2),
    Sketcher.Constraint("Horizontal", 31, 2, 36, 2),
    Sketcher.Constraint("Equal", 3, 9),
    Sketcher.Constraint("Equal", 6, 12),
    Sketcher.Constraint("Equal", 11, 17),
    Sketcher.Constraint("Equal", 14, 20),
    Sketcher.Constraint("Equal", 19, 25),
    Sketcher.Constraint("Equal", 22, 28),
    Sketcher.Constraint("Equal", 59, 0),
    Sketcher.Constraint("Equal", 62, 5),
    Sketcher.Constraint("DistanceX", 1, 1, 1, 2, 1.6),
    Sketcher.Constraint("DistanceX", 4, 2, 4, 1, 0.75),
    Sketcher.Constraint("DistanceX", 0, 2, -1, 1, 9.55),
    Sketcher.Constraint("DistanceX", 8, 2, -1, 1, 7.05),
    Sketcher.Constraint("DistanceX", 16, 2, -1, 1, 4.55),
    Sketcher.Constraint("DistanceX", 24, 2, -1, 1, 2.05),
    Sketcher.Constraint("DistanceX", 4, 2, -1, 1, 9.125),
    Sketcher.Constraint("DistanceX", 12, 2, -1, 1, 6.625),
    Sketcher.Constraint("DistanceX", 20, 2, -1, 1, 4.125),
    Sketcher.Constraint("DistanceX", 28, 2, -1, 1, 1.625),
])
sketch3.setExpression("Constraints[166]", "Params.sketch3_width")
sketch3.setExpression("Constraints[167]", "Params.sketch3_width2")
pad2 = doc.addObject("PartDesign::Pad", "Pad001")
body.addObject(pad2)
pad2.Profile = sketch3
pad2.setExpression("Length", "Params.pad2_length")
pad2.Reversed = True

doc.recompute()
